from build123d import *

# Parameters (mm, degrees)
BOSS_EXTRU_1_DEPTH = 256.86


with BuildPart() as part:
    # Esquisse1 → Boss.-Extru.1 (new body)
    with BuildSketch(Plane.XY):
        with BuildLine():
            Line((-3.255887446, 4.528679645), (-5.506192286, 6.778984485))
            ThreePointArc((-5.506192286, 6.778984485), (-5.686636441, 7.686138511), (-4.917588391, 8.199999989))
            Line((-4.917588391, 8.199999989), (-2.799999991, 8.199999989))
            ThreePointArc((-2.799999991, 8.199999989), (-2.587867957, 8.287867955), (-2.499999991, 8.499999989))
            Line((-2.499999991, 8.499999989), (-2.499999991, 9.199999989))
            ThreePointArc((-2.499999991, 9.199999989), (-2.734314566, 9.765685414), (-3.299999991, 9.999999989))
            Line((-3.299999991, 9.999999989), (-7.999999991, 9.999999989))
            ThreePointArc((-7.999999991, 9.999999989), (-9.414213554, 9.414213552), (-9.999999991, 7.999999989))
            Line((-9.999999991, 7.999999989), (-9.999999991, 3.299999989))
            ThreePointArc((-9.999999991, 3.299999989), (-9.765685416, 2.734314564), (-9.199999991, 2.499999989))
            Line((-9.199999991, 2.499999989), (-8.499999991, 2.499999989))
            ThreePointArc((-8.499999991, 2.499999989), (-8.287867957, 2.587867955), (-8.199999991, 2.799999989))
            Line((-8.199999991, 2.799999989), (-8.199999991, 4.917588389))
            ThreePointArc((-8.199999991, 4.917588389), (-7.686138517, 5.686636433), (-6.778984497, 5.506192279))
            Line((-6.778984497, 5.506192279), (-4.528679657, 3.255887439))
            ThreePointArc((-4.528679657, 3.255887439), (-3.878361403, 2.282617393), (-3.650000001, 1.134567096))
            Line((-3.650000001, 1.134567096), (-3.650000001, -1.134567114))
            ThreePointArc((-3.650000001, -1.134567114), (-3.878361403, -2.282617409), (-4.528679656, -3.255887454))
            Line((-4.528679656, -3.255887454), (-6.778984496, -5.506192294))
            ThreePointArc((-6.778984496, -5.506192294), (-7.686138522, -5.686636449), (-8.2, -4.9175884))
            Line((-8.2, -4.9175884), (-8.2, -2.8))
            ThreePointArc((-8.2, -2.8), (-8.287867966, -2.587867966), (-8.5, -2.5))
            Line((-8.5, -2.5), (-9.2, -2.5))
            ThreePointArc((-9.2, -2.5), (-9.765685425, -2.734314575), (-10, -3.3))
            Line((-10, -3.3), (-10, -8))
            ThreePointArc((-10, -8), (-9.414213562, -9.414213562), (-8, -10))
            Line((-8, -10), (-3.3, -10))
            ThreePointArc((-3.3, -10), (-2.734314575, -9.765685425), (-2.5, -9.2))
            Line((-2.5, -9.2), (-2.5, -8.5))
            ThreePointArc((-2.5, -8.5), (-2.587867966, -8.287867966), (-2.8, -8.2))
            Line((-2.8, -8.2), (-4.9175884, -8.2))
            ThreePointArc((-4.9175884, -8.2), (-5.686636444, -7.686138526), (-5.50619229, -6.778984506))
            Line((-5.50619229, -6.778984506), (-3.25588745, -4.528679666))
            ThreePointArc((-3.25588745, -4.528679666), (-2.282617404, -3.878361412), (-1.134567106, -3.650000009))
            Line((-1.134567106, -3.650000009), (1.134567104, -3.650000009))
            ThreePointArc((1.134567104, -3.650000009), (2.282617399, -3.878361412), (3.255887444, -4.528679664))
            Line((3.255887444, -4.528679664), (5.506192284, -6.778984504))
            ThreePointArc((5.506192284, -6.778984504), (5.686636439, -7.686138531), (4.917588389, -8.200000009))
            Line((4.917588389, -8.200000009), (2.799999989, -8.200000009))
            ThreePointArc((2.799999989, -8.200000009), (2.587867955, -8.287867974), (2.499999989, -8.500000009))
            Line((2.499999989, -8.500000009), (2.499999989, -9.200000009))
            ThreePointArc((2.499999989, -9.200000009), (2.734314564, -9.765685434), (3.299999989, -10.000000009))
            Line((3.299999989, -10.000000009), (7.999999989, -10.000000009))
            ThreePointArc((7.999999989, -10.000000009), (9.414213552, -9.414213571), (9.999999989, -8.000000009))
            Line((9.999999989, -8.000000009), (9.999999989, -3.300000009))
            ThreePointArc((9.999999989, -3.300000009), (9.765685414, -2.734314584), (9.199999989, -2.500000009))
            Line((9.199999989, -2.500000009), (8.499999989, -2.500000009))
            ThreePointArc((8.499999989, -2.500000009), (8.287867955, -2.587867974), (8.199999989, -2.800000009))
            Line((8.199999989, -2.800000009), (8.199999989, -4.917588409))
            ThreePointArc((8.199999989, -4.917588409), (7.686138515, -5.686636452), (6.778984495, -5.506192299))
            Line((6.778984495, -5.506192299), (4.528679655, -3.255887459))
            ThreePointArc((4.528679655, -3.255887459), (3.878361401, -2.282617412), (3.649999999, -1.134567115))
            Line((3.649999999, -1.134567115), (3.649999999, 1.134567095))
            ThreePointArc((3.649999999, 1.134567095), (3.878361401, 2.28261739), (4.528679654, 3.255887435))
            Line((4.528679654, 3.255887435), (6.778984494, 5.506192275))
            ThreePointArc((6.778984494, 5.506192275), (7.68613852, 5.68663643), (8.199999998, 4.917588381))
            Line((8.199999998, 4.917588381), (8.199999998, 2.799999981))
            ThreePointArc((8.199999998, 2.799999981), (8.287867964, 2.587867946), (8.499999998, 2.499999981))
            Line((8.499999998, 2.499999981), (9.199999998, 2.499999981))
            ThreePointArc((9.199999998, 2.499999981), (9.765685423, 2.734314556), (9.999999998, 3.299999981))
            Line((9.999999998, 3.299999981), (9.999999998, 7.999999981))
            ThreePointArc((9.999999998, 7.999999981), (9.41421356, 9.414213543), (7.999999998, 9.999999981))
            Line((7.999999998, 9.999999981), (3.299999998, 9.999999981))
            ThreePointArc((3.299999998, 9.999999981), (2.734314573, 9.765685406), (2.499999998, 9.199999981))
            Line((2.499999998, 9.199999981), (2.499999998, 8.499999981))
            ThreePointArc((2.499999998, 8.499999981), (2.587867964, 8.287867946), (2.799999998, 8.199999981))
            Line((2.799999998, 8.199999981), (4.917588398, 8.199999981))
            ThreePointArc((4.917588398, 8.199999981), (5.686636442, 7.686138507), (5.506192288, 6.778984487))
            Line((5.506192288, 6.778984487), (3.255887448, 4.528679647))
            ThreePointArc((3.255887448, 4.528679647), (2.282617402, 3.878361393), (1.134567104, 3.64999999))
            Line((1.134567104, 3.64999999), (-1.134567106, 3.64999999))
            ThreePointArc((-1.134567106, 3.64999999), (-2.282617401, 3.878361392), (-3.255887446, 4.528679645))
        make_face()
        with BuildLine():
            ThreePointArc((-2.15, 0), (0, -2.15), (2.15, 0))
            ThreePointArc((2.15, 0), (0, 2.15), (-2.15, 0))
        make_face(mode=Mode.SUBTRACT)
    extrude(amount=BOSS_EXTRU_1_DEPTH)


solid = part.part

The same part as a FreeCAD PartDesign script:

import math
import FreeCAD as App
import Part
import Sketcher
from FreeCAD import Vector
Q = App.Units.Quantity

doc = App.newDocument("Part")
body = doc.addObject("PartDesign::Body", "Body")

# Sketch on XY plane
sketch1 = body.newObject("Sketcher::SketchObject", "Sketch")
sketch1.AttachmentSupport = (doc.getObject("XY_Plane"), [""])
sketch1.MapMode = "FlatFace"
sketch1.addGeometry([
    Part.LineSegment(Vector(-3.255887, 4.52868, 0), Vector(-5.506192, 6.778984, 0)),  # 0
    Part.ArcOfCircle(Part.Circle(Vector(-4.917588, 7.367588, 0), Vector(0, 0, 1), 0.832412), math.radians(90), math.radians(225)),  # 1
    Part.LineSegment(Vector(-4.917588, 8.2, 0), Vector(-2.8, 8.2, 0)),  # 2
    Part.ArcOfCircle(Part.Circle(Vector(-2.8, 8.5, 0), Vector(0, 0, 1), 0.3), math.radians(-90), math.radians(0)),  # 3
    Part.LineSegment(Vector(-2.5, 8.5, 0), Vector(-2.5, 9.2, 0)),  # 4
    Part.ArcOfCircle(Part.Circle(Vector(-3.3, 9.2, 0), Vector(0, 0, 1), 0.8), math.radians(0), math.radians(90)),  # 5
    Part.LineSegment(Vector(-3.3, 10, 0), Vector(-8, 10, 0)),  # 6
    Part.ArcOfCircle(Part.Circle(Vector(-8, 8, 0), Vector(0, 0, 1), 2), math.radians(90), math.radians(180)),  # 7
    Part.LineSegment(Vector(-10, 8, 0), Vector(-10, 3.3, 0)),  # 8
    Part.ArcOfCircle(Part.Circle(Vector(-9.2, 3.3, 0), Vector(0, 0, 1), 0.8), math.radians(180), math.radians(270)),  # 9
    Part.LineSegment(Vector(-9.2, 2.5, 0), Vector(-8.5, 2.5, 0)),  # 10
    Part.ArcOfCircle(Part.Circle(Vector(-8.5, 2.8, 0), Vector(0, 0, 1), 0.3), math.radians(-90), math.radians(0)),  # 11
    Part.LineSegment(Vector(-8.2, 2.8, 0), Vector(-8.2, 4.917588, 0)),  # 12
    Part.ArcOfCircle(Part.Circle(Vector(-7.367588, 4.917588, 0), Vector(0, 0, 1), 0.832412), math.radians(45), math.radians(180)),  # 13
    Part.LineSegment(Vector(-6.778984, 5.506192, 0), Vector(-4.52868, 3.255887, 0)),  # 14
    Part.ArcOfCircle(Part.Circle(Vector(-6.65, 1.134567, 0), Vector(0, 0, 1), 3), math.radians(0), math.radians(45)),  # 15
    Part.LineSegment(Vector(-3.65, 1.134567, 0), Vector(-3.65, -1.134567, 0)),  # 16
    Part.ArcOfCircle(Part.Circle(Vector(-6.65, -1.134567, 0), Vector(0, 0, 1), 3), math.radians(-45), math.radians(0)),  # 17
    Part.LineSegment(Vector(-4.52868, -3.255887, 0), Vector(-6.778984, -5.506192, 0)),  # 18
    Part.ArcOfCircle(Part.Circle(Vector(-7.367588, -4.917588, 0), Vector(0, 0, 1), 0.832412), math.radians(180), math.radians(315)),  # 19
    Part.LineSegment(Vector(-8.2, -4.917588, 0), Vector(-8.2, -2.8, 0)),  # 20
    Part.ArcOfCircle(Part.Circle(Vector(-8.5, -2.8, 0), Vector(0, 0, 1), 0.3), math.radians(0), math.radians(90)),  # 21
    Part.LineSegment(Vector(-8.5, -2.5, 0), Vector(-9.2, -2.5, 0)),  # 22
    Part.ArcOfCircle(Part.Circle(Vector(-9.2, -3.3, 0), Vector(0, 0, 1), 0.8), math.radians(90), math.radians(180)),  # 23
    Part.LineSegment(Vector(-10, -3.3, 0), Vector(-10, -8, 0)),  # 24
    Part.ArcOfCircle(Part.Circle(Vector(-8, -8, 0), Vector(0, 0, 1), 2), math.radians(-180), math.radians(-90)),  # 25
    Part.LineSegment(Vector(-8, -10, 0), Vector(-3.3, -10, 0)),  # 26
    Part.ArcOfCircle(Part.Circle(Vector(-3.3, -9.2, 0), Vector(0, 0, 1), 0.8), math.radians(-90), math.radians(0)),  # 27
    Part.LineSegment(Vector(-2.5, -9.2, 0), Vector(-2.5, -8.5, 0)),  # 28
    Part.ArcOfCircle(Part.Circle(Vector(-2.8, -8.5, 0), Vector(0, 0, 1), 0.3), math.radians(0), math.radians(90)),  # 29
    Part.LineSegment(Vector(-2.8, -8.2, 0), Vector(-4.917588, -8.2, 0)),  # 30
    Part.ArcOfCircle(Part.Circle(Vector(-4.917588, -7.367588, 0), Vector(0, 0, 1), 0.832412), math.radians(135), math.radians(270)),  # 31
    Part.LineSegment(Vector(-5.506192, -6.778985, 0), Vector(-3.255887, -4.52868, 0)),  # 32
    Part.ArcOfCircle(Part.Circle(Vector(-1.134567, -6.65, 0), Vector(0, 0, 1), 3), math.radians(90), math.radians(135)),  # 33
    Part.LineSegment(Vector(-1.134567, -3.65, 0), Vector(1.134567, -3.65, 0)),  # 34
    Part.ArcOfCircle(Part.Circle(Vector(1.134567, -6.65, 0), Vector(0, 0, 1), 3), math.radians(45), math.radians(90)),  # 35
    Part.LineSegment(Vector(3.255887, -4.52868, 0), Vector(5.506192, -6.778985, 0)),  # 36
    Part.ArcOfCircle(Part.Circle(Vector(4.917588, -7.367588, 0), Vector(0, 0, 1), 0.832412), math.radians(-90), math.radians(45)),  # 37
    Part.LineSegment(Vector(4.917588, -8.2, 0), Vector(2.8, -8.2, 0)),  # 38
    Part.ArcOfCircle(Part.Circle(Vector(2.8, -8.5, 0), Vector(0, 0, 1), 0.3), math.radians(90), math.radians(180)),  # 39
    Part.LineSegment(Vector(2.5, -8.5, 0), Vector(2.5, -9.2, 0)),  # 40
    Part.ArcOfCircle(Part.Circle(Vector(3.3, -9.2, 0), Vector(0, 0, 1), 0.8), math.radians(180), math.radians(270)),  # 41
    Part.LineSegment(Vector(3.3, -10, 0), Vector(8, -10, 0)),  # 42
    Part.ArcOfCircle(Part.Circle(Vector(8, -8, 0), Vector(0, 0, 1), 2), math.radians(-90), math.radians(0)),  # 43
    Part.LineSegment(Vector(10, -8, 0), Vector(10, -3.3, 0)),  # 44
    Part.ArcOfCircle(Part.Circle(Vector(9.2, -3.3, 0), Vector(0, 0, 1), 0.8), math.radians(0), math.radians(90)),  # 45
    Part.LineSegment(Vector(9.2, -2.5, 0), Vector(8.5, -2.5, 0)),  # 46
    Part.ArcOfCircle(Part.Circle(Vector(8.5, -2.8, 0), Vector(0, 0, 1), 0.3), math.radians(90), math.radians(180)),  # 47
    Part.LineSegment(Vector(8.2, -2.8, 0), Vector(8.2, -4.917588, 0)),  # 48
    Part.ArcOfCircle(Part.Circle(Vector(7.367588, -4.917588, 0), Vector(0, 0, 1), 0.832412), math.radians(-135), math.radians(0)),  # 49
    Part.LineSegment(Vector(6.778984, -5.506192, 0), Vector(4.52868, -3.255887, 0)),  # 50
    Part.ArcOfCircle(Part.Circle(Vector(6.65, -1.134567, 0), Vector(0, 0, 1), 3), math.radians(180), math.radians(225)),  # 51
    Part.LineSegment(Vector(3.65, -1.134567, 0), Vector(3.65, 1.134567, 0)),  # 52
    Part.ArcOfCircle(Part.Circle(Vector(6.65, 1.134567, 0), Vector(0, 0, 1), 3), math.radians(135), math.radians(180)),  # 53
    Part.LineSegment(Vector(4.52868, 3.255887, 0), Vector(6.778984, 5.506192, 0)),  # 54
    Part.ArcOfCircle(Part.Circle(Vector(7.367588, 4.917588, 0), Vector(0, 0, 1), 0.832412), math.radians(0), math.radians(135)),  # 55
    Part.LineSegment(Vector(8.2, 4.917588, 0), Vector(8.2, 2.8, 0)),  # 56
    Part.ArcOfCircle(Part.Circle(Vector(8.5, 2.8, 0), Vector(0, 0, 1), 0.3), math.radians(180), math.radians(270)),  # 57
    Part.LineSegment(Vector(8.5, 2.5, 0), Vector(9.2, 2.5, 0)),  # 58
    Part.ArcOfCircle(Part.Circle(Vector(9.2, 3.3, 0), Vector(0, 0, 1), 0.8), math.radians(-90), math.radians(0)),  # 59
    Part.LineSegment(Vector(10, 3.3, 0), Vector(10, 8, 0)),  # 60
    Part.ArcOfCircle(Part.Circle(Vector(8, 8, 0), Vector(0, 0, 1), 2), math.radians(0), math.radians(90)),  # 61
    Part.LineSegment(Vector(8, 10, 0), Vector(3.3, 10, 0)),  # 62
    Part.ArcOfCircle(Part.Circle(Vector(3.3, 9.2, 0), Vector(0, 0, 1), 0.8), math.radians(90), math.radians(180)),  # 63
    Part.LineSegment(Vector(2.5, 9.2, 0), Vector(2.5, 8.5, 0)),  # 64
    Part.ArcOfCircle(Part.Circle(Vector(2.8, 8.5, 0), Vector(0, 0, 1), 0.3), math.radians(180), math.radians(270)),  # 65
    Part.LineSegment(Vector(2.8, 8.2, 0), Vector(4.917588, 8.2, 0)),  # 66
    Part.ArcOfCircle(Part.Circle(Vector(4.917588, 7.367588, 0), Vector(0, 0, 1), 0.832412), math.radians(-45), math.radians(90)),  # 67
    Part.LineSegment(Vector(5.506192, 6.778984, 0), Vector(3.255887, 4.52868, 0)),  # 68
    Part.ArcOfCircle(Part.Circle(Vector(1.134567, 6.65, 0), Vector(0, 0, 1), 3), math.radians(-90), math.radians(-45)),  # 69
    Part.LineSegment(Vector(1.134567, 3.65, 0), Vector(-1.134567, 3.65, 0)),  # 70
    Part.ArcOfCircle(Part.Circle(Vector(-1.134567, 6.65, 0), Vector(0, 0, 1), 3), math.radians(-135), math.radians(-90)),  # 71
    Part.Circle(Vector(0, 0, 0), Vector(0, 0, 1), 2.15),  # 72
], False)
sketch1.addConstraint([
    Sketcher.Constraint("Tangent", 0, 2, 1, 2),
    Sketcher.Constraint("Tangent", 1, 1, 2, 1),
    Sketcher.Constraint("Tangent", 2, 2, 3, 1),
    Sketcher.Constraint("Tangent", 3, 2, 4, 1),
    Sketcher.Constraint("Tangent", 4, 2, 5, 1),
    Sketcher.Constraint("Tangent", 5, 2, 6, 1),
    Sketcher.Constraint("Tangent", 6, 2, 7, 1),
    Sketcher.Constraint("Tangent", 7, 2, 8, 1),
    Sketcher.Constraint("Tangent", 8, 2, 9, 1),
    Sketcher.Constraint("Tangent", 9, 2, 10, 1),
    Sketcher.Constraint("Tangent", 10, 2, 11, 1),
    Sketcher.Constraint("Tangent", 11, 2, 12, 1),
    Sketcher.Constraint("Tangent", 12, 2, 13, 2),
    Sketcher.Constraint("Tangent", 13, 1, 14, 1),
    Sketcher.Constraint("Tangent", 14, 2, 15, 2),
    Sketcher.Constraint("Tangent", 15, 1, 16, 1),
    Sketcher.Constraint("Tangent", 16, 2, 17, 2),
    Sketcher.Constraint("Tangent", 17, 1, 18, 1),
    Sketcher.Constraint("Tangent", 18, 2, 19, 2),
    Sketcher.Constraint("Tangent", 19, 1, 20, 1),
    Sketcher.Constraint("Tangent", 20, 2, 21, 1),
    Sketcher.Constraint("Tangent", 21, 2, 22, 1),
    Sketcher.Constraint("Tangent", 22, 2, 23, 1),
    Sketcher.Constraint("Tangent", 23, 2, 24, 1),
    Sketcher.Constraint("Tangent", 24, 2, 25, 1),
    Sketcher.Constraint("Tangent", 25, 2, 26, 1),
    Sketcher.Constraint("Tangent", 26, 2, 27, 1),
    Sketcher.Constraint("Tangent", 27, 2, 28, 1),
    Sketcher.Constraint("Tangent", 28, 2, 29, 1),
    Sketcher.Constraint("Tangent", 29, 2, 30, 1),
    Sketcher.Constraint("Tangent", 30, 2, 31, 2),
    Sketcher.Constraint("Tangent", 31, 1, 32, 1),
    Sketcher.Constraint("Tangent", 32, 2, 33, 2),
    Sketcher.Constraint("Tangent", 33, 1, 34, 1),
    Sketcher.Constraint("Tangent", 34, 2, 35, 2),
    Sketcher.Constraint("Tangent", 35, 1, 36, 1),
    Sketcher.Constraint("Tangent", 36, 2, 37, 2),
    Sketcher.Constraint("Tangent", 37, 1, 38, 1),
    Sketcher.Constraint("Tangent", 38, 2, 39, 1),
    Sketcher.Constraint("Tangent", 39, 2, 40, 1),
    Sketcher.Constraint("Tangent", 40, 2, 41, 1),
    Sketcher.Constraint("Tangent", 41, 2, 42, 1),
    Sketcher.Constraint("Tangent", 42, 2, 43, 1),
    Sketcher.Constraint("Tangent", 43, 2, 44, 1),
    Sketcher.Constraint("Tangent", 44, 2, 45, 1),
    Sketcher.Constraint("Tangent", 45, 2, 46, 1),
    Sketcher.Constraint("Tangent", 46, 2, 47, 1),
    Sketcher.Constraint("Tangent", 47, 2, 48, 1),
    Sketcher.Constraint("Tangent", 48, 2, 49, 2),
    Sketcher.Constraint("Tangent", 49, 1, 50, 1),
    Sketcher.Constraint("Tangent", 50, 2, 51, 2),
    Sketcher.Constraint("Tangent", 51, 1, 52, 1),
    Sketcher.Constraint("Tangent", 52, 2, 53, 2),
    Sketcher.Constraint("Tangent", 53, 1, 54, 1),
    Sketcher.Constraint("Tangent", 54, 2, 55, 2),
    Sketcher.Constraint("Tangent", 55, 1, 56, 1),
    Sketcher.Constraint("Tangent", 56, 2, 57, 1),
    Sketcher.Constraint("Tangent", 57, 2, 58, 1),
    Sketcher.Constraint("Tangent", 58, 2, 59, 1),
    Sketcher.Constraint("Tangent", 59, 2, 60, 1),
    Sketcher.Constraint("Tangent", 60, 2, 61, 1),
    Sketcher.Constraint("Tangent", 61, 2, 62, 1),
    Sketcher.Constraint("Tangent", 62, 2, 63, 1),
    Sketcher.Constraint("Tangent", 63, 2, 64, 1),
    Sketcher.Constraint("Tangent", 64, 2, 65, 1),
    Sketcher.Constraint("Tangent", 65, 2, 66, 1),
    Sketcher.Constraint("Tangent", 66, 2, 67, 2),
    Sketcher.Constraint("Tangent", 67, 1, 68, 1),
    Sketcher.Constraint("Tangent", 68, 2, 69, 2),
    Sketcher.Constraint("Tangent", 69, 1, 70, 1),
    Sketcher.Constraint("Tangent", 70, 2, 71, 2),
    Sketcher.Constraint("Tangent", 71, 1, 0, 1),
    Sketcher.Constraint("Horizontal", 2),
    Sketcher.Constraint("Vertical", 4),
    Sketcher.Constraint("Horizontal", 6),
    Sketcher.Constraint("Vertical", 8),
    Sketcher.Constraint("Horizontal", 10),
    Sketcher.Constraint("Vertical", 12),
    Sketcher.Constraint("Vertical", 16),
    Sketcher.Constraint("Vertical", 20),
    Sketcher.Constraint("Horizontal", 22),
    Sketcher.Constraint("Vertical", 24),
    Sketcher.Constraint("Horizontal", 26),
    Sketcher.Constraint("Vertical", 28),
    Sketcher.Constraint("Horizontal", 30),
    Sketcher.Constraint("Horizontal", 34),
    Sketcher.Constraint("Horizontal", 38),
    Sketcher.Constraint("Vertical", 40),
    Sketcher.Constraint("Horizontal", 42),
    Sketcher.Constraint("Vertical", 44),
    Sketcher.Constraint("Horizontal", 46),
    Sketcher.Constraint("Vertical", 48),
    Sketcher.Constraint("Vertical", 52),
    Sketcher.Constraint("Vertical", 56),
    Sketcher.Constraint("Horizontal", 58),
    Sketcher.Constraint("Vertical", 60),
    Sketcher.Constraint("Horizontal", 62),
    Sketcher.Constraint("Vertical", 64),
    Sketcher.Constraint("Horizontal", 66),
    Sketcher.Constraint("Horizontal", 70),
    Sketcher.Constraint("Coincident", 72, 3, -1, 1),
    Sketcher.Constraint("Equal", 5, 9),
    Sketcher.Constraint("Equal", 3, 11),
    Sketcher.Constraint("Equal", 1, 13),
    Sketcher.Constraint("Equal", 15, 17),
    Sketcher.Constraint("Equal", 13, 19),
    Sketcher.Constraint("Equal", 11, 21),
    Sketcher.Constraint("Equal", 9, 23),
    Sketcher.Constraint("Equal", 7, 25),
    Sketcher.Constraint("Equal", 23, 27),
    Sketcher.Constraint("Equal", 21, 29),
    Sketcher.Constraint("Equal", 19, 31),
    Sketcher.Constraint("Equal", 17, 33),
    Sketcher.Constraint("Equal", 33, 35),
    Sketcher.Constraint("Equal", 31, 37),
    Sketcher.Constraint("Equal", 29, 39),
    Sketcher.Constraint("Equal", 27, 41),
    Sketcher.Constraint("Equal", 25, 43),
    Sketcher.Constraint("Equal", 41, 45),
    Sketcher.Constraint("Equal", 39, 47),
    Sketcher.Constraint("Equal", 37, 49),
    Sketcher.Constraint("Equal", 35, 51),
    Sketcher.Constraint("Equal", 51, 53),
    Sketcher.Constraint("Equal", 49, 55),
    Sketcher.Constraint("Equal", 47, 57),
    Sketcher.Constraint("Equal", 45, 59),
    Sketcher.Constraint("Equal", 43, 61),
    Sketcher.Constraint("Equal", 59, 63),
    Sketcher.Constraint("Equal", 57, 65),
    Sketcher.Constraint("Equal", 55, 67),
    Sketcher.Constraint("Equal", 53, 69),
    Sketcher.Constraint("Equal", 69, 71),
    Sketcher.Constraint("Symmetric", 1, 3, 37, 3, -1, 1),
    Sketcher.Constraint("Symmetric", 5, 3, 41, 3, -1, 1),
    Sketcher.Constraint("Symmetric", 9, 3, 45, 3, -1, 1),
    Sketcher.Constraint("Symmetric", 13, 3, 49, 3, -1, 1),
    Sketcher.Constraint("Symmetric", 15, 3, 51, 3, -1, 1),
    Sketcher.Constraint("Symmetric", 19, 3, 55, 3, -1, 1),
    Sketcher.Constraint("Symmetric", 23, 3, 59, 3, -1, 1),
    Sketcher.Constraint("Symmetric", 27, 3, 63, 3, -1, 1),
    Sketcher.Constraint("Symmetric", 31, 3, 67, 3, -1, 1),
    Sketcher.Constraint("Symmetric", 33, 3, 69, 3, -1, 1),
    Sketcher.Constraint("Symmetric", 31, 3, 37, 3, -2),
    Sketcher.Constraint("Symmetric", 27, 3, 41, 3, -2),
    Sketcher.Constraint("Symmetric", 23, 3, 45, 3, -2),
    Sketcher.Constraint("Symmetric", 19, 3, 49, 3, -2),
    Sketcher.Constraint("Parallel", 0, 14),
    Sketcher.Constraint("Perpendicular", 14, 18),
    Sketcher.Constraint("Parallel", 18, 32),
    Sketcher.Constraint("Perpendicular", 32, 36),
    Sketcher.Constraint("Perpendicular", 50, 54),
    Sketcher.Constraint("Horizontal", 17, 3, 51, 3),
    Sketcher.Constraint("Equal", 58, 4),
    Sketcher.Constraint("Equal", 62, 8),
    Sketcher.Constraint("Equal", 66, 12),
    Sketcher.Constraint("Equal", 70, 16),
    Sketcher.Constraint("Equal", 0, 14),
    Sketcher.Constraint("Radius", 7, Q("2 mm")),
    Sketcher.Constraint("Radius", 15, Q("3 mm")),
    Sketcher.Constraint("Diameter", 72, Q("4.3 mm")),
    Sketcher.Constraint("Radius", 3, Q("0.3 mm")),
    Sketcher.Constraint("Radius", 5, Q("0.8 mm")),
    Sketcher.Constraint("DistanceX", 6, 2, 6, 1, Q("4.7 mm")),
    Sketcher.Constraint("DistanceX", 10, 1, 10, 2, Q("0.7 mm")),
    Sketcher.Constraint("DistanceX", 7, 3, -1, 1, Q("8 mm")),
    Sketcher.Constraint("DistanceX", 15, 3, -1, 1, Q("6.65 mm")),
    Sketcher.Constraint("Radius", 1, Q("0.832412 mm")),
    Sketcher.Constraint("DistanceX", 2, 1, 2, 2, Q("2.117588 mm")),
])
pad1 = body.newObject("PartDesign::Pad", "Pad")
pad1.Profile = sketch1
pad1.Length = 256.86

doc.recompute()
